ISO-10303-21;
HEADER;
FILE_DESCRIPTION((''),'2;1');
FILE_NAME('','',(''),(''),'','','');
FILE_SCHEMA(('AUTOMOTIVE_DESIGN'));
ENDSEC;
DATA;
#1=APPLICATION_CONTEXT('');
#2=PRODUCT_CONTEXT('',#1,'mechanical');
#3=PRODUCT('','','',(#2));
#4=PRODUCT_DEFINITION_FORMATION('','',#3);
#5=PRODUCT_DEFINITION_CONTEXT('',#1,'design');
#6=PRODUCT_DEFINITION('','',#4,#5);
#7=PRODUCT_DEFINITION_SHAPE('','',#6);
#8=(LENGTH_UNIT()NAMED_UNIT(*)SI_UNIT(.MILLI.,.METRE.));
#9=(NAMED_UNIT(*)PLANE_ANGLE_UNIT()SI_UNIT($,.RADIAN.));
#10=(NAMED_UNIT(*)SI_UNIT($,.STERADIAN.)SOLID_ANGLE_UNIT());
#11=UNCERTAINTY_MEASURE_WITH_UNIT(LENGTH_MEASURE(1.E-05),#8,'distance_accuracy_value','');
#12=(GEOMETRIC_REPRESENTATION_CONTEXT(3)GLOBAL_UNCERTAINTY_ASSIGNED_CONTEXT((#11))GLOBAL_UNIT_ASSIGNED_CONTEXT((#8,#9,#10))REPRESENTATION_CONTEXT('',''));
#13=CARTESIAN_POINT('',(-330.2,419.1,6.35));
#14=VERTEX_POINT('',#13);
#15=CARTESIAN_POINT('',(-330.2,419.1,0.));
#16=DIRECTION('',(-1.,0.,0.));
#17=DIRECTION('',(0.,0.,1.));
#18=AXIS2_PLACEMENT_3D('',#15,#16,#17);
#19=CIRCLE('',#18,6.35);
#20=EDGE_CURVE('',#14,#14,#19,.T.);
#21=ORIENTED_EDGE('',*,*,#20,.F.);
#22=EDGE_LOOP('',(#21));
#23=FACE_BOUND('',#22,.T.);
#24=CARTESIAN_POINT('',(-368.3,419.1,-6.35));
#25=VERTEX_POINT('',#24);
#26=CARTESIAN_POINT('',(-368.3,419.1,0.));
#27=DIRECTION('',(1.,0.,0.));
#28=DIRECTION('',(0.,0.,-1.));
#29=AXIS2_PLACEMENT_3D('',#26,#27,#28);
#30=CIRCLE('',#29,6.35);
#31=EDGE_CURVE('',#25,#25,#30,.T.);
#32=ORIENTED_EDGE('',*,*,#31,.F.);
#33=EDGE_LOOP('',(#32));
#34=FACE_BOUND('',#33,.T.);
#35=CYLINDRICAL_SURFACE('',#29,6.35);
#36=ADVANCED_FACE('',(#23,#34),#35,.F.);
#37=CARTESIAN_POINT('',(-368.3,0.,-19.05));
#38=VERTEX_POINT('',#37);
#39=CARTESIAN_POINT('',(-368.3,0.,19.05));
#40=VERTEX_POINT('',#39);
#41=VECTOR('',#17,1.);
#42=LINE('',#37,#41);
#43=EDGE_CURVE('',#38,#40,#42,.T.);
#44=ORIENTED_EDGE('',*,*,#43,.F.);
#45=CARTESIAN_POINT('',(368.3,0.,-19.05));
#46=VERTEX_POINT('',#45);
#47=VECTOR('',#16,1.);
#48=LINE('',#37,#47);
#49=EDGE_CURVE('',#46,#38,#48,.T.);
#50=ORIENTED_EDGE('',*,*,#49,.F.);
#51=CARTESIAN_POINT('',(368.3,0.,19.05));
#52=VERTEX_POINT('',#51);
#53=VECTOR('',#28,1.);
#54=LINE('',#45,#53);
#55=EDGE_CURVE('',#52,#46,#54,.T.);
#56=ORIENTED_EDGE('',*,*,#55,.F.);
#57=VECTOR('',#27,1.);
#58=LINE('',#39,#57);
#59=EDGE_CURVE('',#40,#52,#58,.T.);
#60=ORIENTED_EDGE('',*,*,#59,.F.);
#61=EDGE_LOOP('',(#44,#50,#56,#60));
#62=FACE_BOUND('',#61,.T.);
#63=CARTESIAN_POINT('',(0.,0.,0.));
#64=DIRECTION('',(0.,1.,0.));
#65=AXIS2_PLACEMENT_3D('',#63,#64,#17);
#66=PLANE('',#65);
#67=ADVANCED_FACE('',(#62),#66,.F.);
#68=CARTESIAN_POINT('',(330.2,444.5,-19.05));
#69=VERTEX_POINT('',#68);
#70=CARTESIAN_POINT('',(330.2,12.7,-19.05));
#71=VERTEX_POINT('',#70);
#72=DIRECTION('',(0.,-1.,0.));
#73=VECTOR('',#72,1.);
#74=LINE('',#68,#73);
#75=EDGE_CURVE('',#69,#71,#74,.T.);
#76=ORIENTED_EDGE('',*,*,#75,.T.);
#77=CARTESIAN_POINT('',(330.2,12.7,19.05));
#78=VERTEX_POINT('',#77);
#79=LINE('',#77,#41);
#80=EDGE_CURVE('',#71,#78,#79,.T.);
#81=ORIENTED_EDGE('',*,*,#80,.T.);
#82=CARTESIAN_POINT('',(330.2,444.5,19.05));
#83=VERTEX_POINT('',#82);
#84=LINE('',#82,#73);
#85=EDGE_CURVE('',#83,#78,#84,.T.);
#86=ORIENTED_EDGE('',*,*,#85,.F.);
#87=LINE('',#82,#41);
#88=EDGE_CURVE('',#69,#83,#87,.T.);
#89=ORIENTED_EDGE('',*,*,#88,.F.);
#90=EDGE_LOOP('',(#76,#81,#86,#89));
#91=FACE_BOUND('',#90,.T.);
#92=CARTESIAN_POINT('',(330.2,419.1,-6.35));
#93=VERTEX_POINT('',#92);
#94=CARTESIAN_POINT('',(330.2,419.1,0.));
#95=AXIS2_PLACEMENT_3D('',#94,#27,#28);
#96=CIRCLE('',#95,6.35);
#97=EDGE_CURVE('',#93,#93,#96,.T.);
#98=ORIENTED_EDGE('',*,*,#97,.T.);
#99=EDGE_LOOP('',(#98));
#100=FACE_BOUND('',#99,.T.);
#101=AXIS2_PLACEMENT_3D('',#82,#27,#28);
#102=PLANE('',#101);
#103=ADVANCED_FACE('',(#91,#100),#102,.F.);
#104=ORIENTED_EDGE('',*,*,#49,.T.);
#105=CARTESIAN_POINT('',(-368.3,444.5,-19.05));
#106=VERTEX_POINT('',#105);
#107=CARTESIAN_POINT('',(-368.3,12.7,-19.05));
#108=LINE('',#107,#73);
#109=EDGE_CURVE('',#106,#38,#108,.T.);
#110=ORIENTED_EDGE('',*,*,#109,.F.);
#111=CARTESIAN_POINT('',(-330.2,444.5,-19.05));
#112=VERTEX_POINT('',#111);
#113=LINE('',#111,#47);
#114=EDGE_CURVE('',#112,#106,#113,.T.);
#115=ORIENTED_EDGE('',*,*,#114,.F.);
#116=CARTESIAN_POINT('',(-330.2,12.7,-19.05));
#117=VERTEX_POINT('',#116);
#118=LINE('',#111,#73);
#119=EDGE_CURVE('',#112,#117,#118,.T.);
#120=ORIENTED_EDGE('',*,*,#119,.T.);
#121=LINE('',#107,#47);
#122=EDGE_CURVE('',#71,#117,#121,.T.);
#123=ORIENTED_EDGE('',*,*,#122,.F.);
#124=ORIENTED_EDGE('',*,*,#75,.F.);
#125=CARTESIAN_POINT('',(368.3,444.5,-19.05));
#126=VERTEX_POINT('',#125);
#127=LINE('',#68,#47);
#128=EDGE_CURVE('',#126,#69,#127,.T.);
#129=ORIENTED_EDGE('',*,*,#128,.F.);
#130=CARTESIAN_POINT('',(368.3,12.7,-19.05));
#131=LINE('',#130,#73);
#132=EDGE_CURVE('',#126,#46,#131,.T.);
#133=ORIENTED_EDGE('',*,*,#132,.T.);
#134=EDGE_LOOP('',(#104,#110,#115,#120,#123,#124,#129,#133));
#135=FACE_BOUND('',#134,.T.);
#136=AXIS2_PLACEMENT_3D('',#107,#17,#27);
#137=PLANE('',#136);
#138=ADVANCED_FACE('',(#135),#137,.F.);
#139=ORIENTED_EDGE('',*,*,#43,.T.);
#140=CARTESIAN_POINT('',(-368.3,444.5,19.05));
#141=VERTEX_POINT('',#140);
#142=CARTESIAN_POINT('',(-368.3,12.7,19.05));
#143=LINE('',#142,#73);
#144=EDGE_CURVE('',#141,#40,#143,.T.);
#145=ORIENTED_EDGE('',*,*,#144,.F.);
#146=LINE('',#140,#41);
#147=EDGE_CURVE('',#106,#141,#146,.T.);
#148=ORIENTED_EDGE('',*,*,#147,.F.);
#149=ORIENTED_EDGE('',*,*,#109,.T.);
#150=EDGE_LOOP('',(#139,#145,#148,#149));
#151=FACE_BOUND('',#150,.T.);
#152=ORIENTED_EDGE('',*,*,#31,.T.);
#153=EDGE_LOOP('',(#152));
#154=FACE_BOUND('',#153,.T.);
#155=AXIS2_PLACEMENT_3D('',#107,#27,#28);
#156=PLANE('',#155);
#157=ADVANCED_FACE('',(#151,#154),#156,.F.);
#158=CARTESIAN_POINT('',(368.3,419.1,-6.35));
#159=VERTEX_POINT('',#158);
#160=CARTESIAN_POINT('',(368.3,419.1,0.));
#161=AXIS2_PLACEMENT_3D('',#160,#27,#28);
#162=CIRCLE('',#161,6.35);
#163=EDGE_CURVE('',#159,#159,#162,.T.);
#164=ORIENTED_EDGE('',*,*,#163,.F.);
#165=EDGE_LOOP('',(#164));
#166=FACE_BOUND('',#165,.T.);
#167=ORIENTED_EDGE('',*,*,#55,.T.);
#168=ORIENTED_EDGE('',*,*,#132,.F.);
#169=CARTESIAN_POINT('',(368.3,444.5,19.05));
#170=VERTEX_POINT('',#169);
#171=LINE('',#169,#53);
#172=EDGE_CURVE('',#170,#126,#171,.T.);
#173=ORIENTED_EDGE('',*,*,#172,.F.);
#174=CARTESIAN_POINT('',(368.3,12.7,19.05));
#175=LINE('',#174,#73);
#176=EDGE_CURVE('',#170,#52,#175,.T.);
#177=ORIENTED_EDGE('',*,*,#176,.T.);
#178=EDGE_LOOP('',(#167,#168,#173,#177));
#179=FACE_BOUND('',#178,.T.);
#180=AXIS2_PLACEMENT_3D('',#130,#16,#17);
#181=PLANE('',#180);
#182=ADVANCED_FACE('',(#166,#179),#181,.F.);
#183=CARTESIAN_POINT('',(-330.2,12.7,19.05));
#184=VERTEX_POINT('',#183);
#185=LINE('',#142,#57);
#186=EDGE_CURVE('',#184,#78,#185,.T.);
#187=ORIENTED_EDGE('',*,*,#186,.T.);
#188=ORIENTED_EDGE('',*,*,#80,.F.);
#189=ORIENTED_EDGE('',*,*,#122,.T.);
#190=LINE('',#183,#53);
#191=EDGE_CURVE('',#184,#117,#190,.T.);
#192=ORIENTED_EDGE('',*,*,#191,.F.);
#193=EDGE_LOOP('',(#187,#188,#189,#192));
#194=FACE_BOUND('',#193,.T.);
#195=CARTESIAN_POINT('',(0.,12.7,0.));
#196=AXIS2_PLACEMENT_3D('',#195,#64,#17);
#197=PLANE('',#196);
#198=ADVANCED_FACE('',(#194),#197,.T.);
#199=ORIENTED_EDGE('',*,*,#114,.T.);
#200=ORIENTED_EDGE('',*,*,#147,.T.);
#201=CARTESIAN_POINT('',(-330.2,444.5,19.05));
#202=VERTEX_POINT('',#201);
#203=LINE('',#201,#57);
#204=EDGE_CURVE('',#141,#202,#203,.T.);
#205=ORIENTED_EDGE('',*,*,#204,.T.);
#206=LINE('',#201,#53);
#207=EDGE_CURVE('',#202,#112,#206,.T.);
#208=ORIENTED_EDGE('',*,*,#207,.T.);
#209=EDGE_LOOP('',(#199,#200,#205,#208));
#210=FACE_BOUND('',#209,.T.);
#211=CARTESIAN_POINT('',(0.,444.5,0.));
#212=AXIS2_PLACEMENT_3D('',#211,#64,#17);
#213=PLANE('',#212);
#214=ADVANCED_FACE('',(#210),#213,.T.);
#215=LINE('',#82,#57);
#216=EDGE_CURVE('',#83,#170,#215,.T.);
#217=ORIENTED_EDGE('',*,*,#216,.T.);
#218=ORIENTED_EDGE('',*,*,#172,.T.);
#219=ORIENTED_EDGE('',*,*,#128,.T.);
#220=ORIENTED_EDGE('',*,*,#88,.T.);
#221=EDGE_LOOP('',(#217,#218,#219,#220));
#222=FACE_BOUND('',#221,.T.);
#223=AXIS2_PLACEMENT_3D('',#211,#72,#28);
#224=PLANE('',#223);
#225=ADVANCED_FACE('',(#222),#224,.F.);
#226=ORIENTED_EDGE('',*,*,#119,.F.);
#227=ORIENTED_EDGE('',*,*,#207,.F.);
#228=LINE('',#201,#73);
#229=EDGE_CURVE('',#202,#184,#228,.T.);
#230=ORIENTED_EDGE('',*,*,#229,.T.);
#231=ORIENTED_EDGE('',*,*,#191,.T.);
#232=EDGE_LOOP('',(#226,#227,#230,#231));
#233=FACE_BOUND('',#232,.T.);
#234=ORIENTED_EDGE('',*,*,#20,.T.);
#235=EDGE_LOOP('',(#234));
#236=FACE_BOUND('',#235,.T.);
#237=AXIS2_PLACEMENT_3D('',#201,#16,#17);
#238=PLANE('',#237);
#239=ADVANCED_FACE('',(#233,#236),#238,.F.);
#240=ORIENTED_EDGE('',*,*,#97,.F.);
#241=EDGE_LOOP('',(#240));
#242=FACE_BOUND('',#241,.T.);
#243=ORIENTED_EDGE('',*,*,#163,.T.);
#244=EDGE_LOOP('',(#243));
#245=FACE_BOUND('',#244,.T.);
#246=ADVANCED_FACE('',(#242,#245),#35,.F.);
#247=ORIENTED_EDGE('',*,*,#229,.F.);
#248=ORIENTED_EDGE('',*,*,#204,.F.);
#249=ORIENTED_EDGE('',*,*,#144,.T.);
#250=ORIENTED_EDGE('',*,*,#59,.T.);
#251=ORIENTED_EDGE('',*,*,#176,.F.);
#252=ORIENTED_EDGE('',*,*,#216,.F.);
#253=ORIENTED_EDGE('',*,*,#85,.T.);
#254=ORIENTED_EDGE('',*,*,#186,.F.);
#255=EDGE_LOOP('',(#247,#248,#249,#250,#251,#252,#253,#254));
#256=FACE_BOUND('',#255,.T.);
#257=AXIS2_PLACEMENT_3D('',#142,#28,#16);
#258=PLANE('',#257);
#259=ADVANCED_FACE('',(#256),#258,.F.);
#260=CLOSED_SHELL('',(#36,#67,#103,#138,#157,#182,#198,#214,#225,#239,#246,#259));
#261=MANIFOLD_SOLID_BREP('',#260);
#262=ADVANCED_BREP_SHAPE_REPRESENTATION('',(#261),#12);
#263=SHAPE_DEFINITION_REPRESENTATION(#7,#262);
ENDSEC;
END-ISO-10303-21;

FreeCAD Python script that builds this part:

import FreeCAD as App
import Part
import Sketcher

V = App.Vector
Q = App.Units.Quantity

doc = App.newDocument("Part")
params = doc.addObject("Spreadsheet::Sheet", "Params")
for row, (alias, value) in enumerate([
    ("sketch1_width", "29 in"),
    ("sketch1_height", "1.5 in"),
    ("pad1_length", "0.5 in"),
    ("sketch2_width", "1.5 in"),
    ("pad2_length", "17 in"),
    ("sketch3_diameter", "0.5 in"),
], start=1):
    params.set(f"A{row}", alias)
    params.set(f"B{row}", "=" + value)
    params.setAlias(f"B{row}", alias)

body = doc.addObject("PartDesign::Body", "Body")

# Sketch on XZ plane
sketch1 = doc.addObject("Sketcher::SketchObject", "Sketch")
body.addObject(sketch1)
sketch1.AttachmentSupport = (doc.XZ_Plane, [""])
sketch1.MapMode = "FlatFace"
sketch1.addGeometry(Part.LineSegment(V(-368, -19, 0), V(-368, 19, 0)), False)
sketch1.addGeometry(Part.LineSegment(V(-368, 19, 0), V(368, 19, 0)), False)
sketch1.addGeometry(Part.LineSegment(V(368, 19, 0), V(368, -19, 0)), False)
sketch1.addGeometry(Part.LineSegment(V(368, -19, 0), V(-368, -19, 0)), False)
sketch1.addConstraint(Sketcher.Constraint("Coincident", 0, 2, 1, 1))
sketch1.addConstraint(Sketcher.Constraint("Coincident", 1, 2, 2, 1))
sketch1.addConstraint(Sketcher.Constraint("Coincident", 2, 2, 3, 1))
sketch1.addConstraint(Sketcher.Constraint("Coincident", 3, 2, 0, 1))
sketch1.addConstraint(Sketcher.Constraint("Vertical", 0))
sketch1.addConstraint(Sketcher.Constraint("Horizontal", 1))
sketch1.addConstraint(Sketcher.Constraint("Vertical", 2))
sketch1.addConstraint(Sketcher.Constraint("Horizontal", 3))
sketch1.addConstraint(Sketcher.Constraint("Symmetric", 0, 2, 2, 2, -1, 1))
sketch1.addConstraint(Sketcher.Constraint("DistanceX", 1, 1, 1, 2, Q("29 in")))
sketch1.addConstraint(Sketcher.Constraint("DistanceY", 0, 1, 0, 2, Q("1.5 in")))
sketch1.setExpression("Constraints[9]", "Params.sketch1_width")
sketch1.setExpression("Constraints[10]", "Params.sketch1_height")
pad1 = doc.addObject("PartDesign::Pad", "Pad")
body.addObject(pad1)
pad1.Profile = sketch1
pad1.setExpression("Length", "Params.pad1_length")
pad1.Reversed = True

# Sketch on XZ plane
sketch2 = doc.addObject("Sketcher::SketchObject", "Sketch001")
body.addObject(sketch2)
sketch2.AttachmentSupport = (doc.XZ_Plane, [""])
sketch2.MapMode = "FlatFace"
sketch2.AttachmentOffset = App.Placement(V(0, 0, -0.5 * 25.4), App.Rotation())
sketch2.addGeometry(Part.LineSegment(V(-368, -19, 0), V(-368, 19, 0)), False)
sketch2.addGeometry(Part.LineSegment(V(-368, 19, 0), V(-330, 19, 0)), False)
sketch2.addGeometry(Part.LineSegment(V(-330, 19, 0), V(-330, -19, 0)), False)
sketch2.addGeometry(Part.LineSegment(V(-330, -19, 0), V(-368, -19, 0)), False)
sketch2.addGeometry(Part.LineSegment(V(330, -19, 0), V(330, 19, 0)), False)
sketch2.addGeometry(Part.LineSegment(V(330, 19, 0), V(368, 19, 0)), False)
sketch2.addGeometry(Part.LineSegment(V(368, 19, 0), V(368, -19, 0)), False)
sketch2.addGeometry(Part.LineSegment(V(368, -19, 0), V(330, -19, 0)), False)
sketch2.addConstraint(Sketcher.Constraint("Coincident", 0, 2, 1, 1))
sketch2.addConstraint(Sketcher.Constraint("Coincident", 1, 2, 2, 1))
sketch2.addConstraint(Sketcher.Constraint("Coincident", 2, 2, 3, 1))
sketch2.addConstraint(Sketcher.Constraint("Coincident", 3, 2, 0, 1))
sketch2.addConstraint(Sketcher.Constraint("Coincident", 4, 2, 5, 1))
sketch2.addConstraint(Sketcher.Constraint("Coincident", 5, 2, 6, 1))
sketch2.addConstraint(Sketcher.Constraint("Coincident", 6, 2, 7, 1))
sketch2.addConstraint(Sketcher.Constraint("Coincident", 7, 2, 4, 1))
sketch2.addConstraint(Sketcher.Constraint("Vertical", 0))
sketch2.addConstraint(Sketcher.Constraint("Horizontal", 1))
sketch2.addConstraint(Sketcher.Constraint("Vertical", 2))
sketch2.addConstraint(Sketcher.Constraint("Horizontal", 3))
sketch2.addConstraint(Sketcher.Constraint("Vertical", 4))
sketch2.addConstraint(Sketcher.Constraint("Horizontal", 5))
sketch2.addConstraint(Sketcher.Constraint("Vertical", 6))
sketch2.addConstraint(Sketcher.Constraint("Horizontal", 7))
sketch2.addConstraint(Sketcher.Constraint("Symmetric", 2, 2, 4, 2, -1, 1))
sketch2.addConstraint(Sketcher.Constraint("Symmetric", 0, 2, 6, 2, -1, 1))
sketch2.addConstraint(Sketcher.Constraint("Horizontal", 1, 2, 4, 2))
sketch2.addConstraint(Sketcher.Constraint("Equal", 7, 0))
sketch2.addConstraint(Sketcher.Constraint("DistanceX", 1, 1, 1, 2, Q("1.5 in")))
sketch2.addConstraint(Sketcher.Constraint("DistanceX", 1, 2, -1, 1, Q("13 in")))
sketch2.setExpression("Constraints[20]", "Params.sketch2_width")
pad2 = doc.addObject("PartDesign::Pad", "Pad001")
body.addObject(pad2)
pad2.Profile = sketch2
pad2.setExpression("Length", "Params.pad2_length")
pad2.Reversed = True

# Sketch on YZ plane
sketch3 = doc.addObject("Sketcher::SketchObject", "Sketch002")
body.addObject(sketch3)
sketch3.AttachmentSupport = (doc.YZ_Plane, [""])
sketch3.MapMode = "FlatFace"
sketch3.AttachmentOffset = App.Placement(V(0, 0, 14.5 * 25.4), App.Rotation())
sketch3.addGeometry(Part.Circle(V(419, 0, 0), V(0, 0, 1), 6), False)
sketch3.addConstraint(Sketcher.Constraint("PointOnObject", 0, 3, -1))
sketch3.addConstraint(Sketcher.Constraint("Diameter", 0, Q("0.5 in")))
sketch3.addConstraint(Sketcher.Constraint("DistanceX", -1, 1, 0, 3, Q("16.5 in")))
sketch3.setExpression("Constraints[1]", "Params.sketch3_diameter")
pocket1 = doc.addObject("PartDesign::Pocket", "Pocket")
body.addObject(pocket1)
pocket1.Profile = sketch3
pocket1.Type = "ThroughAll"

doc.recompute()
